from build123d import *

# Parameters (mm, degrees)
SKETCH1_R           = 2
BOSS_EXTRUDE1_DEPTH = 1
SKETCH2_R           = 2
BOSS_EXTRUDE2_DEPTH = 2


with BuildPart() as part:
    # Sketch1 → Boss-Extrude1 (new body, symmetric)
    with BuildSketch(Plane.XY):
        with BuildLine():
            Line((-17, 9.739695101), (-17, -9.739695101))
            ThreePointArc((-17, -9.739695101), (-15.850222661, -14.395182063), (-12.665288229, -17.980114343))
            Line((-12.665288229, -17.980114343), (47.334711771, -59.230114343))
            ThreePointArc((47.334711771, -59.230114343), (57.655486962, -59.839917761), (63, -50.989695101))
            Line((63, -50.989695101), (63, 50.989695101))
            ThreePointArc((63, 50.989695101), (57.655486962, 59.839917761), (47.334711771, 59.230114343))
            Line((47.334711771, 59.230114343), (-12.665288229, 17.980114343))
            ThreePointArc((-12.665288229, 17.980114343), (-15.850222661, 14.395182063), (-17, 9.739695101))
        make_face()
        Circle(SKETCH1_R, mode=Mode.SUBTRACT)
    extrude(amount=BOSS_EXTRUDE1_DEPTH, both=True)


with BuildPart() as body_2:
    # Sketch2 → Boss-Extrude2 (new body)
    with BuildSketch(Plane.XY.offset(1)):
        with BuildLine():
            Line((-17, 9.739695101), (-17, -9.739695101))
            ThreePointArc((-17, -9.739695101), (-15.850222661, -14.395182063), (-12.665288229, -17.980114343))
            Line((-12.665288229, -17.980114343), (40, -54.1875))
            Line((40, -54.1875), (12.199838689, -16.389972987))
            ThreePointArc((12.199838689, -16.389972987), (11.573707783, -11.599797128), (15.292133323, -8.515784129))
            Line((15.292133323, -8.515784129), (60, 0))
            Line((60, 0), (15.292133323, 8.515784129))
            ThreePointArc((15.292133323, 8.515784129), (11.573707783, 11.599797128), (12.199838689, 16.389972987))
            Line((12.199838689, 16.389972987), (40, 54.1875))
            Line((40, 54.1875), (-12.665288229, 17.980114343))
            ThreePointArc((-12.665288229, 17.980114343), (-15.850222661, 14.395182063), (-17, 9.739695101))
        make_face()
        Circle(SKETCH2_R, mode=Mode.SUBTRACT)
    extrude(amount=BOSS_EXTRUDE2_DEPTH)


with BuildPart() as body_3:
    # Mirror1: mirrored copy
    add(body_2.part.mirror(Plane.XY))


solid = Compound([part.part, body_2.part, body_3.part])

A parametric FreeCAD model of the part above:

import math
import FreeCAD as App
import Part
import Sketcher

V = App.Vector

doc = App.newDocument("Part")
params = doc.addObject("Spreadsheet::Sheet", "Params")
for row, (alias, value) in enumerate([
    ("sketch1_diameter", "4 mm"),
    ("sketch1_radius", "10 mm"),
    ("pad1_length", "2 mm"),
    ("sketch2_diameter", "4 mm"),
    ("sketch2_radius", "10 mm"),
    ("sketch2_radius2", "5 mm"),
    ("pad2_length", "2 mm"),
], start=1):
    params.set(f"A{row}", alias)
    params.set(f"B{row}", "=" + value)
    params.setAlias(f"B{row}", alias)

body = doc.addObject("PartDesign::Body", "Body")

sketch1 = body.newObject("Sketcher::SketchObject", "Sketch")
sketch1.AttachmentSupport = (doc.getObject("XY_Plane"), [""])
sketch1.MapMode = "FlatFace"
sketch1.addGeometry([
    Part.LineSegment(V(-17, 9.7, 0), V(-17, -9.7, 0)),
    Part.ArcOfCircle(Part.Circle(V(-7, -9.7, 0), V(0, 0, 1), 10), math.radians(180), math.radians(235)),
    Part.LineSegment(V(-12.7, -18, 0), V(47.3, -59.2, 0)),
    Part.ArcOfCircle(Part.Circle(V(53, -51, 0), V(0, 0, 1), 10), math.radians(-125), math.radians(0)),
    Part.LineSegment(V(63, -51, 0), V(63, 51, 0)),
    Part.ArcOfCircle(Part.Circle(V(53, 51, 0), V(0, 0, 1), 10), math.radians(0), math.radians(125)),
    Part.LineSegment(V(47.3, 59.2, 0), V(-12.7, 18, 0)),
    Part.ArcOfCircle(Part.Circle(V(-7, 9.7, 0), V(0, 0, 1), 10), math.radians(125), math.radians(180)),
    Part.Circle(V(0, 0, 0), V(0, 0, 1), 2),
], False)
sketch1.addConstraint([
    Sketcher.Constraint("Tangent", 0, 2, 1, 1),
    Sketcher.Constraint("Tangent", 1, 2, 2, 1),
    Sketcher.Constraint("Tangent", 2, 2, 3, 1),
    Sketcher.Constraint("Tangent", 3, 2, 4, 1),
    Sketcher.Constraint("Tangent", 4, 2, 5, 1),
    Sketcher.Constraint("Tangent", 5, 2, 6, 1),
    Sketcher.Constraint("Tangent", 6, 2, 7, 1),
    Sketcher.Constraint("Tangent", 7, 2, 0, 1),
    Sketcher.Constraint("Vertical", 0),
    Sketcher.Constraint("Vertical", 4),
    Sketcher.Constraint("Coincident", 8, 3, -1, 1),
    Sketcher.Constraint("Equal", 1, 3),
    Sketcher.Constraint("Equal", 3, 5),
    Sketcher.Constraint("Equal", 5, 7),
    Sketcher.Constraint("Symmetric", 2, 2, 5, 2, -1),
    Sketcher.Constraint("Diameter", 8, 4.0),
    Sketcher.Constraint("Radius", 1, 10.0),
    Sketcher.Constraint("DistanceX", 1, 3, -1, 1, 7.0),
    Sketcher.Constraint("DistanceX", -1, 1, 3, 3, 53.0),
    Sketcher.Constraint("DistanceY", 3, 3, 1, 3, 41.25),
    Sketcher.Constraint("DistanceY", 0, 2, 0, 1, 19.47939),
])
sketch1.setExpression("Constraints[15]", "Params.sketch1_diameter")
sketch1.setExpression("Constraints[16]", "Params.sketch1_radius")
pad1 = body.newObject("PartDesign::Pad", "Pad")
pad1.Profile = sketch1
pad1.setExpression("Length", "Params.pad1_length")
pad1.Midplane = True
body2 = doc.addObject("PartDesign::Body", "Body001")

sketch2 = body2.newObject("Sketcher::SketchObject", "Sketch001")
sketch2.AttachmentSupport = (doc.getObject("XY_Plane001"), [""])
sketch2.MapMode = "FlatFace"
sketch2.AttachmentOffset = App.Placement(V(0, 0, 1), App.Rotation())
sketch2.addGeometry([
    Part.LineSegment(V(-17, 9.7, 0), V(-17, -9.7, 0)),
    Part.ArcOfCircle(Part.Circle(V(-7, -9.7, 0), V(0, 0, 1), 10), math.radians(180), math.radians(235)),
    Part.LineSegment(V(-12.7, -18, 0), V(40, -54.2, 0)),
    Part.LineSegment(V(40, -54.2, 0), V(12.2, -16.4, 0)),
    Part.ArcOfCircle(Part.Circle(V(16.2, -13.4, 0), V(0, 0, 1), 5), math.radians(101), math.radians(216)),
    Part.LineSegment(V(15.3, -8.5, 0), V(60, 0, 0)),
    Part.LineSegment(V(60, 0, 0), V(15.3, 8.5, 0)),
    Part.ArcOfCircle(Part.Circle(V(16.2, 13.4, 0), V(0, 0, 1), 5), math.radians(144), math.radians(259)),
    Part.LineSegment(V(12.2, 16.4, 0), V(40, 54.2, 0)),
    Part.LineSegment(V(40, 54.2, 0), V(-12.7, 18, 0)),
    Part.ArcOfCircle(Part.Circle(V(-7, 9.7, 0), V(0, 0, 1), 10), math.radians(125), math.radians(180)),
    Part.Circle(V(0, 0, 0), V(0, 0, 1), 2),
], False)
sketch2.addConstraint([
    Sketcher.Constraint("Tangent", 0, 2, 1, 1),
    Sketcher.Constraint("Tangent", 1, 2, 2, 1),
    Sketcher.Constraint("Coincident", 2, 2, 3, 1),
    Sketcher.Constraint("Tangent", 3, 2, 4, 2),
    Sketcher.Constraint("Tangent", 4, 1, 5, 1),
    Sketcher.Constraint("Coincident", 5, 2, 6, 1),
    Sketcher.Constraint("Tangent", 6, 2, 7, 2),
    Sketcher.Constraint("Tangent", 7, 1, 8, 1),
    Sketcher.Constraint("Coincident", 8, 2, 9, 1),
    Sketcher.Constraint("Tangent", 9, 2, 10, 1),
    Sketcher.Constraint("Tangent", 10, 2, 0, 1),
    Sketcher.Constraint("Vertical", 0),
    Sketcher.Constraint("Coincident", 11, 3, -1, 1),
    Sketcher.Constraint("Equal", 4, 7),
    Sketcher.Constraint("Equal", 1, 10),
    Sketcher.Constraint("Symmetric", 4, 3, 7, 3, -1),
    Sketcher.Constraint("Symmetric", 2, 2, 8, 2, -1),
    Sketcher.Constraint("PointOnObject", 5, 2, -1),
    Sketcher.Constraint("Vertical", 1, 2, 9, 2),
    Sketcher.Constraint("Diameter", 11, 4.0),
    Sketcher.Constraint("Radius", 1, 10.0),
    Sketcher.Constraint("Radius", 4, 5.0),
    Sketcher.Constraint("DistanceX", 1, 3, -1, 1, 7.0),
    Sketcher.Constraint("DistanceX", -1, 1, 2, 2, 40.0),
    Sketcher.Constraint("DistanceX", -1, 1, 5, 2, 60.0),
    Sketcher.Constraint("DistanceY", 0, 2, 0, 1, 19.47939),
    Sketcher.Constraint("DistanceY", 2, 2, -1, 1, 54.1875),
    Sketcher.Constraint("DistanceX", -1, 1, 3, 2, 12.199839),
    Sketcher.Constraint("DistanceY", 4, 3, 1, 3, 3.687782),
])
sketch2.setExpression("Constraints[19]", "Params.sketch2_diameter")
sketch2.setExpression("Constraints[20]", "Params.sketch2_radius")
sketch2.setExpression("Constraints[21]", "Params.sketch2_radius2")
pad2 = body2.newObject("PartDesign::Pad", "Pad001")
pad2.Profile = sketch2
pad2.setExpression("Length", "Params.pad2_length")
body3 = doc.addObject("PartDesign::Body", "Body002")
doc.recompute()

mirroring = doc.addObject("Part::Mirroring", "Mirroring")
mirroring.Source = body2
mirroring.Base = V(0, 0, 0)
mirroring.Normal = V(0, 0, 1)
body3.BaseFeature = mirroring
doc.recompute()
mirroring.Visibility = False

doc.recompute()
